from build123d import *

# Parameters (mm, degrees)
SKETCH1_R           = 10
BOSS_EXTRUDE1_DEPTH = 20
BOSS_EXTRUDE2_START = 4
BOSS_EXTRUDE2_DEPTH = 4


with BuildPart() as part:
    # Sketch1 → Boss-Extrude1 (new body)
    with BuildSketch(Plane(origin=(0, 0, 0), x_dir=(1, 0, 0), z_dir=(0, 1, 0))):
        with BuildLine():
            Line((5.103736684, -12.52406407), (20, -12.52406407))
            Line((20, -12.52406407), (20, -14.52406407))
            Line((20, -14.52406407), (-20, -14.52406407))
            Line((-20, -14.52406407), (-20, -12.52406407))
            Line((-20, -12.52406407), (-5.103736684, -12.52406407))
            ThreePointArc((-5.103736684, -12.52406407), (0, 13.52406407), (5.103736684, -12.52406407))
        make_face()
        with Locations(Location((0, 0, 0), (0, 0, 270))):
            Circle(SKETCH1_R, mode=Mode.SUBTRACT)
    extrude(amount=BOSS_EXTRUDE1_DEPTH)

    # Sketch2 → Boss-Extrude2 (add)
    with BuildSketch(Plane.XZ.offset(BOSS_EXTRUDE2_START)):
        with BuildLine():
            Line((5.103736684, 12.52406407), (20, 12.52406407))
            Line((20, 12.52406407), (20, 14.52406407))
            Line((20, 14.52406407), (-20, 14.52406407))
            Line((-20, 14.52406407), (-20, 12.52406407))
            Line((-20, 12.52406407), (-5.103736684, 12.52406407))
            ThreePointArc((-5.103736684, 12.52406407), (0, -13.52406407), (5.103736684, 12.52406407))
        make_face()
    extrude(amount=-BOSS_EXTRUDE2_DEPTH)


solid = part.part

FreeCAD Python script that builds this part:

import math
import FreeCAD as App
import Part
import Sketcher
from FreeCAD import Vector
Q = App.Units.Quantity

doc = App.newDocument("Part")
body = doc.addObject("PartDesign::Body", "Body")

sketch1 = body.newObject("Sketcher::SketchObject", "Sketch")
sketch1.AttachmentSupport = (doc.getObject("XZ_Plane"), [""])
sketch1.MapMode = "FlatFace"
sketch1.addGeometry([
    Part.LineSegment(Vector(20, 12.5, 0), Vector(5.1, 12.5, 0)),
    Part.ArcOfCircle(Part.Circle(Vector(0, 0, 0), Vector(0, 0, 1), 13.5), math.radians(112), math.radians(428)),
    Part.LineSegment(Vector(-5.1, 12.5, 0), Vector(-20, 12.5, 0)),
    Part.LineSegment(Vector(-20, 12.5, 0), Vector(-20, 14.5, 0)),
    Part.LineSegment(Vector(-20, 14.5, 0), Vector(20, 14.5, 0)),
    Part.LineSegment(Vector(20, 14.5, 0), Vector(20, 12.5, 0)),
    Part.Circle(Vector(0, 0, 0), Vector(0, 0, 1), 10),
], False)
sketch1.addConstraint([
    Sketcher.Constraint("Coincident", 0, 2, 1, 2),
    Sketcher.Constraint("Coincident", 1, 1, 2, 1),
    Sketcher.Constraint("Coincident", 2, 2, 3, 1),
    Sketcher.Constraint("Coincident", 3, 2, 4, 1),
    Sketcher.Constraint("Coincident", 4, 2, 5, 1),
    Sketcher.Constraint("Coincident", 5, 2, 0, 1),
    Sketcher.Constraint("Horizontal", 0),
    Sketcher.Constraint("Horizontal", 2),
    Sketcher.Constraint("Vertical", 3),
    Sketcher.Constraint("Horizontal", 4),
    Sketcher.Constraint("Vertical", 5),
    Sketcher.Constraint("Coincident", 1, 3, -1, 1),
    Sketcher.Constraint("Coincident", 6, 3, -1, 1),
    Sketcher.Constraint("Symmetric", 2, 2, 5, 2, -2),
    Sketcher.Constraint("Diameter", 6, Q("20 mm")),
    Sketcher.Constraint("DistanceX", 4, 1, 4, 2, Q("40 mm")),
    Sketcher.Constraint("DistanceY", 3, 1, 3, 2, Q("2 mm")),
    Sketcher.Constraint("Radius", 1, Q("13.524064 mm")),
    Sketcher.Constraint("DistanceX", 0, 2, 0, 1, Q("14.896263 mm")),
])
pad1 = body.newObject("PartDesign::Pad", "Pad")
pad1.Profile = sketch1
pad1.Length = 20
pad1.Reversed = True

sketch2 = body.newObject("Sketcher::SketchObject", "Sketch001")
sketch2.AttachmentSupport = (doc.getObject("XZ_Plane"), [""])
sketch2.MapMode = "FlatFace"
sketch2.AttachmentOffset = App.Placement(Vector(0, 0, 4), App.Rotation())
sketch2.addGeometry([
    Part.LineSegment(Vector(5.1, 12.5, 0), Vector(20, 12.5, 0)),
    Part.LineSegment(Vector(20, 12.5, 0), Vector(20, 14.5, 0)),
    Part.LineSegment(Vector(20, 14.5, 0), Vector(-20, 14.5, 0)),
    Part.LineSegment(Vector(-20, 14.5, 0), Vector(-20, 12.5, 0)),
    Part.LineSegment(Vector(-20, 12.5, 0), Vector(-5.1, 12.5, 0)),
    Part.ArcOfCircle(Part.Circle(Vector(0, 0, 0), Vector(0, 0, 1), 13.5), math.radians(112), math.radians(428)),
], False)
sketch2.addConstraint([
    Sketcher.Constraint("Coincident", 0, 2, 1, 1),
    Sketcher.Constraint("Coincident", 1, 2, 2, 1),
    Sketcher.Constraint("Coincident", 2, 2, 3, 1),
    Sketcher.Constraint("Coincident", 3, 2, 4, 1),
    Sketcher.Constraint("Coincident", 4, 2, 5, 1),
    Sketcher.Constraint("Coincident", 5, 2, 0, 1),
    Sketcher.Constraint("Horizontal", 0),
    Sketcher.Constraint("Vertical", 1),
    Sketcher.Constraint("Horizontal", 2),
    Sketcher.Constraint("Vertical", 3),
    Sketcher.Constraint("Horizontal", 4),
    Sketcher.Constraint("Coincident", 5, 3, -1, 1),
    Sketcher.Constraint("Symmetric", 0, 2, 3, 2, -2),
    Sketcher.Constraint("DistanceX", 2, 2, 2, 1, Q("40 mm")),
    Sketcher.Constraint("DistanceY", 1, 1, 1, 2, Q("2 mm")),
    Sketcher.Constraint("Radius", 5, Q("13.524064 mm")),
    Sketcher.Constraint("DistanceX", 0, 1, 0, 2, Q("14.896263 mm")),
])
pad2 = body.newObject("PartDesign::Pad", "Pad001")
pad2.Profile = sketch2
pad2.Length = 4
pad2.Reversed = True

doc.recompute()
